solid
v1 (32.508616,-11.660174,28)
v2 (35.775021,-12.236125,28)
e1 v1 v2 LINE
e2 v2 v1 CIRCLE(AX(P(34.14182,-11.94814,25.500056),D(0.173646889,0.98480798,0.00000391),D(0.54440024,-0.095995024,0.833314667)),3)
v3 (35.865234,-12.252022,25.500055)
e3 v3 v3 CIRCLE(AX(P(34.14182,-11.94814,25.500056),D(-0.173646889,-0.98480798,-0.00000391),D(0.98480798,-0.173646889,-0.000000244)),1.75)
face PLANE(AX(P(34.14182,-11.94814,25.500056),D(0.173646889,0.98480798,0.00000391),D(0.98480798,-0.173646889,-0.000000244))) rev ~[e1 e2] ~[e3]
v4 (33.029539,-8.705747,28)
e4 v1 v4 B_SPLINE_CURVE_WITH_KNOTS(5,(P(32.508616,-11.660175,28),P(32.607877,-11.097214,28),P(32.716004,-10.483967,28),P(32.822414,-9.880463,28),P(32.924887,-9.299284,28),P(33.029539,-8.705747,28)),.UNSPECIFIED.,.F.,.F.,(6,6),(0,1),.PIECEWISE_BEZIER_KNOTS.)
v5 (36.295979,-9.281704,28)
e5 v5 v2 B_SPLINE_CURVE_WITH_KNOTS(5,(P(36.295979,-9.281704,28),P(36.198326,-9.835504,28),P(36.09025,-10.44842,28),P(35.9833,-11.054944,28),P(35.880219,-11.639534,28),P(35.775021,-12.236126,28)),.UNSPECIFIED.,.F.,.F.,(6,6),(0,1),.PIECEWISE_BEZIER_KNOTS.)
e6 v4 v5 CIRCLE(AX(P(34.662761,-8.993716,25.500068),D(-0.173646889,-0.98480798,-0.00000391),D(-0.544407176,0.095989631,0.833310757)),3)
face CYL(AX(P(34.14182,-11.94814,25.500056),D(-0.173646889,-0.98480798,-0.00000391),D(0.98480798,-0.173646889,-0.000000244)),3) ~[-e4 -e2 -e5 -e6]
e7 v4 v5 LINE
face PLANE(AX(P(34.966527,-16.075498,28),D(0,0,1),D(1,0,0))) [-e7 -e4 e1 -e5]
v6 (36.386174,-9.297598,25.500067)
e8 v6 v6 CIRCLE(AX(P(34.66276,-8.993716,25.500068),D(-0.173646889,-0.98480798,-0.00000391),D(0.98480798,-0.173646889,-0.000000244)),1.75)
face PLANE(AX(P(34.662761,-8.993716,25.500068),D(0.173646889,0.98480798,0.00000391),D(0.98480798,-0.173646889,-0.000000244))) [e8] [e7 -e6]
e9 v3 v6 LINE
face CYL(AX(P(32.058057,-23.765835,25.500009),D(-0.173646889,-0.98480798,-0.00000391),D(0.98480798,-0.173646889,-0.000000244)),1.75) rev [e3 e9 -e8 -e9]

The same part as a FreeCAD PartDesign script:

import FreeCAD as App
import Part
import Sketcher
Q = App.Units.Quantity

doc = App.newDocument("Part")
body = doc.addObject("PartDesign::Body", "Body")

# Sketch on XY plane
sketch1 = body.newObject("Sketcher::SketchObject", "Sketch")
sketch1.AttachmentSupport = (doc.getObject("XY_Plane"), [""])
sketch1.MapMode = "FlatFace"
sketch1.addGeometry([
    Part.BSplineCurve([App.Vector(44.997663, -28.408983, 0), App.Vector(45.245046, -6.764399, 0), App.Vector(28.5, -0.316434, 0)], [3, 3], [1.556693, 2.83913], False, 2, [1, 0.801368, 1], False),
    Part.LineSegment(App.Vector(28.5, -0.316434, 0), App.Vector(28.5, -25.5, 0)),
    Part.LineSegment(App.Vector(28.5, -25.5, 0), App.Vector(44.997663, -28.408983, 0)),
], False)
sketch1.addConstraint([
    Sketcher.Constraint("Block", 0),
    Sketcher.Constraint("Coincident", 0, 2, 1, 1),
    Sketcher.Constraint("Coincident", 1, 2, 2, 1),
    Sketcher.Constraint("Coincident", 2, 2, 0, 1),
    Sketcher.Constraint("Vertical", 1),
    Sketcher.Constraint("Angle", 2, Q("-10 deg")),
])
pad1 = body.newObject("PartDesign::Pad", "Pad")
pad1.Profile = sketch1
pad1.Length = 3
body2 = doc.addObject("PartDesign::Body", "Body001")
doc.recompute()

body.Placement = App.Placement(App.Vector(0, 0, 28), App.Rotation(App.Vector(0, 0, 1), 0))
boolean = body2.newObject("PartDesign::Boolean", "Boolean")
boolean.Type = "Fuse"
boolean.addObjects([body])
body3 = doc.addObject("PartDesign::Body", "Body002")

# Sketch on XY plane
sketch2 = body3.newObject("Sketcher::SketchObject", "Sketch001")
sketch2.AttachmentSupport = (doc.getObject("XY_Plane002"), [""])
sketch2.MapMode = "FlatFace"
sketch2.addGeometry(Part.Circle(App.Vector(0, 0, 0), App.Vector(0, 0, 1), 1.8), False)
sketch2.addConstraint([
    Sketcher.Constraint("Coincident", 0, 3, -1, 1),
    Sketcher.Constraint("Diameter", 0, Q("3.5 mm")),
])
pad2 = body3.newObject("PartDesign::Pad", "Pad001")
pad2.Profile = sketch2
pad2.Length = 18
body4 = doc.addObject("PartDesign::Body", "Body003")
doc.recompute()

body3.Placement = App.Placement(App.Vector(0, 0, 0), App.Rotation(App.Vector(1, 0, 0), 270.000224))
boolean2 = body4.newObject("PartDesign::Boolean", "Boolean001")
boolean2.Type = "Fuse"
boolean2.addObjects([body3])
body5 = doc.addObject("PartDesign::Body", "Body004")
doc.recompute()

body4.Placement = App.Placement(App.Vector(0, 0, 0), App.Rotation(App.Vector(0, 1, 0), 0.000014))
boolean3 = body5.newObject("PartDesign::Boolean", "Boolean002")
boolean3.Type = "Fuse"
boolean3.addObjects([body4])
body6 = doc.addObject("PartDesign::Body", "Body005")
doc.recompute()

body5.Placement = App.Placement(App.Vector(32.058057, -23.765835, 25.500009), App.Rotation(App.Vector(0, 0, 1), 350.000075))
boolean4 = body6.newObject("PartDesign::Boolean", "Boolean003")
boolean4.Type = "Fuse"
boolean4.addObjects([body5])
body7 = doc.addObject("PartDesign::Body", "Body006")

# Sketch on XY plane
sketch3 = body7.newObject("Sketcher::SketchObject", "Sketch002")
sketch3.AttachmentSupport = (doc.getObject("XY_Plane006"), [""])
sketch3.MapMode = "FlatFace"
sketch3.addGeometry(Part.Circle(App.Vector(0, 0, 0), App.Vector(0, 0, 1), 3), False)
sketch3.addConstraint([
    Sketcher.Constraint("Coincident", 0, 3, -1, 1),
    Sketcher.Constraint("Diameter", 0, Q("6 mm")),
])
pad3 = body7.newObject("PartDesign::Pad", "Pad002")
pad3.Profile = sketch3
pad3.Length = 3
body8 = doc.addObject("PartDesign::Body", "Body007")
doc.recompute()

body7.Placement = App.Placement(App.Vector(0, 0, 0), App.Rotation(App.Vector(1, 0, 0), 270.000224))
boolean5 = body8.newObject("PartDesign::Boolean", "Boolean004")
boolean5.Type = "Fuse"
boolean5.addObjects([body7])
body9 = doc.addObject("PartDesign::Body", "Body008")
doc.recompute()

body8.Placement = App.Placement(App.Vector(0, 0, 0), App.Rotation(App.Vector(0, 1, 0), 0.000014))
boolean6 = body9.newObject("PartDesign::Boolean", "Boolean005")
boolean6.Type = "Fuse"
boolean6.addObjects([body8])
body10 = doc.addObject("PartDesign::Body", "Body009")
doc.recompute()

body9.Placement = App.Placement(App.Vector(34.14182, -11.94814, 25.500056), App.Rotation(App.Vector(0, 0, 1), 350.000075))
boolean7 = body10.newObject("PartDesign::Boolean", "Boolean006")
boolean7.Type = "Fuse"
boolean7.addObjects([body9])
doc.recompute()

boolean8 = body10.newObject("PartDesign::Boolean", "Boolean007")
boolean8.Type = "Cut"
boolean8.addObjects([body6])
doc.recompute()

boolean9 = body10.newObject("PartDesign::Boolean", "Boolean008")
boolean9.Type = "Cut"
boolean9.addObjects([body2])

doc.recompute()
